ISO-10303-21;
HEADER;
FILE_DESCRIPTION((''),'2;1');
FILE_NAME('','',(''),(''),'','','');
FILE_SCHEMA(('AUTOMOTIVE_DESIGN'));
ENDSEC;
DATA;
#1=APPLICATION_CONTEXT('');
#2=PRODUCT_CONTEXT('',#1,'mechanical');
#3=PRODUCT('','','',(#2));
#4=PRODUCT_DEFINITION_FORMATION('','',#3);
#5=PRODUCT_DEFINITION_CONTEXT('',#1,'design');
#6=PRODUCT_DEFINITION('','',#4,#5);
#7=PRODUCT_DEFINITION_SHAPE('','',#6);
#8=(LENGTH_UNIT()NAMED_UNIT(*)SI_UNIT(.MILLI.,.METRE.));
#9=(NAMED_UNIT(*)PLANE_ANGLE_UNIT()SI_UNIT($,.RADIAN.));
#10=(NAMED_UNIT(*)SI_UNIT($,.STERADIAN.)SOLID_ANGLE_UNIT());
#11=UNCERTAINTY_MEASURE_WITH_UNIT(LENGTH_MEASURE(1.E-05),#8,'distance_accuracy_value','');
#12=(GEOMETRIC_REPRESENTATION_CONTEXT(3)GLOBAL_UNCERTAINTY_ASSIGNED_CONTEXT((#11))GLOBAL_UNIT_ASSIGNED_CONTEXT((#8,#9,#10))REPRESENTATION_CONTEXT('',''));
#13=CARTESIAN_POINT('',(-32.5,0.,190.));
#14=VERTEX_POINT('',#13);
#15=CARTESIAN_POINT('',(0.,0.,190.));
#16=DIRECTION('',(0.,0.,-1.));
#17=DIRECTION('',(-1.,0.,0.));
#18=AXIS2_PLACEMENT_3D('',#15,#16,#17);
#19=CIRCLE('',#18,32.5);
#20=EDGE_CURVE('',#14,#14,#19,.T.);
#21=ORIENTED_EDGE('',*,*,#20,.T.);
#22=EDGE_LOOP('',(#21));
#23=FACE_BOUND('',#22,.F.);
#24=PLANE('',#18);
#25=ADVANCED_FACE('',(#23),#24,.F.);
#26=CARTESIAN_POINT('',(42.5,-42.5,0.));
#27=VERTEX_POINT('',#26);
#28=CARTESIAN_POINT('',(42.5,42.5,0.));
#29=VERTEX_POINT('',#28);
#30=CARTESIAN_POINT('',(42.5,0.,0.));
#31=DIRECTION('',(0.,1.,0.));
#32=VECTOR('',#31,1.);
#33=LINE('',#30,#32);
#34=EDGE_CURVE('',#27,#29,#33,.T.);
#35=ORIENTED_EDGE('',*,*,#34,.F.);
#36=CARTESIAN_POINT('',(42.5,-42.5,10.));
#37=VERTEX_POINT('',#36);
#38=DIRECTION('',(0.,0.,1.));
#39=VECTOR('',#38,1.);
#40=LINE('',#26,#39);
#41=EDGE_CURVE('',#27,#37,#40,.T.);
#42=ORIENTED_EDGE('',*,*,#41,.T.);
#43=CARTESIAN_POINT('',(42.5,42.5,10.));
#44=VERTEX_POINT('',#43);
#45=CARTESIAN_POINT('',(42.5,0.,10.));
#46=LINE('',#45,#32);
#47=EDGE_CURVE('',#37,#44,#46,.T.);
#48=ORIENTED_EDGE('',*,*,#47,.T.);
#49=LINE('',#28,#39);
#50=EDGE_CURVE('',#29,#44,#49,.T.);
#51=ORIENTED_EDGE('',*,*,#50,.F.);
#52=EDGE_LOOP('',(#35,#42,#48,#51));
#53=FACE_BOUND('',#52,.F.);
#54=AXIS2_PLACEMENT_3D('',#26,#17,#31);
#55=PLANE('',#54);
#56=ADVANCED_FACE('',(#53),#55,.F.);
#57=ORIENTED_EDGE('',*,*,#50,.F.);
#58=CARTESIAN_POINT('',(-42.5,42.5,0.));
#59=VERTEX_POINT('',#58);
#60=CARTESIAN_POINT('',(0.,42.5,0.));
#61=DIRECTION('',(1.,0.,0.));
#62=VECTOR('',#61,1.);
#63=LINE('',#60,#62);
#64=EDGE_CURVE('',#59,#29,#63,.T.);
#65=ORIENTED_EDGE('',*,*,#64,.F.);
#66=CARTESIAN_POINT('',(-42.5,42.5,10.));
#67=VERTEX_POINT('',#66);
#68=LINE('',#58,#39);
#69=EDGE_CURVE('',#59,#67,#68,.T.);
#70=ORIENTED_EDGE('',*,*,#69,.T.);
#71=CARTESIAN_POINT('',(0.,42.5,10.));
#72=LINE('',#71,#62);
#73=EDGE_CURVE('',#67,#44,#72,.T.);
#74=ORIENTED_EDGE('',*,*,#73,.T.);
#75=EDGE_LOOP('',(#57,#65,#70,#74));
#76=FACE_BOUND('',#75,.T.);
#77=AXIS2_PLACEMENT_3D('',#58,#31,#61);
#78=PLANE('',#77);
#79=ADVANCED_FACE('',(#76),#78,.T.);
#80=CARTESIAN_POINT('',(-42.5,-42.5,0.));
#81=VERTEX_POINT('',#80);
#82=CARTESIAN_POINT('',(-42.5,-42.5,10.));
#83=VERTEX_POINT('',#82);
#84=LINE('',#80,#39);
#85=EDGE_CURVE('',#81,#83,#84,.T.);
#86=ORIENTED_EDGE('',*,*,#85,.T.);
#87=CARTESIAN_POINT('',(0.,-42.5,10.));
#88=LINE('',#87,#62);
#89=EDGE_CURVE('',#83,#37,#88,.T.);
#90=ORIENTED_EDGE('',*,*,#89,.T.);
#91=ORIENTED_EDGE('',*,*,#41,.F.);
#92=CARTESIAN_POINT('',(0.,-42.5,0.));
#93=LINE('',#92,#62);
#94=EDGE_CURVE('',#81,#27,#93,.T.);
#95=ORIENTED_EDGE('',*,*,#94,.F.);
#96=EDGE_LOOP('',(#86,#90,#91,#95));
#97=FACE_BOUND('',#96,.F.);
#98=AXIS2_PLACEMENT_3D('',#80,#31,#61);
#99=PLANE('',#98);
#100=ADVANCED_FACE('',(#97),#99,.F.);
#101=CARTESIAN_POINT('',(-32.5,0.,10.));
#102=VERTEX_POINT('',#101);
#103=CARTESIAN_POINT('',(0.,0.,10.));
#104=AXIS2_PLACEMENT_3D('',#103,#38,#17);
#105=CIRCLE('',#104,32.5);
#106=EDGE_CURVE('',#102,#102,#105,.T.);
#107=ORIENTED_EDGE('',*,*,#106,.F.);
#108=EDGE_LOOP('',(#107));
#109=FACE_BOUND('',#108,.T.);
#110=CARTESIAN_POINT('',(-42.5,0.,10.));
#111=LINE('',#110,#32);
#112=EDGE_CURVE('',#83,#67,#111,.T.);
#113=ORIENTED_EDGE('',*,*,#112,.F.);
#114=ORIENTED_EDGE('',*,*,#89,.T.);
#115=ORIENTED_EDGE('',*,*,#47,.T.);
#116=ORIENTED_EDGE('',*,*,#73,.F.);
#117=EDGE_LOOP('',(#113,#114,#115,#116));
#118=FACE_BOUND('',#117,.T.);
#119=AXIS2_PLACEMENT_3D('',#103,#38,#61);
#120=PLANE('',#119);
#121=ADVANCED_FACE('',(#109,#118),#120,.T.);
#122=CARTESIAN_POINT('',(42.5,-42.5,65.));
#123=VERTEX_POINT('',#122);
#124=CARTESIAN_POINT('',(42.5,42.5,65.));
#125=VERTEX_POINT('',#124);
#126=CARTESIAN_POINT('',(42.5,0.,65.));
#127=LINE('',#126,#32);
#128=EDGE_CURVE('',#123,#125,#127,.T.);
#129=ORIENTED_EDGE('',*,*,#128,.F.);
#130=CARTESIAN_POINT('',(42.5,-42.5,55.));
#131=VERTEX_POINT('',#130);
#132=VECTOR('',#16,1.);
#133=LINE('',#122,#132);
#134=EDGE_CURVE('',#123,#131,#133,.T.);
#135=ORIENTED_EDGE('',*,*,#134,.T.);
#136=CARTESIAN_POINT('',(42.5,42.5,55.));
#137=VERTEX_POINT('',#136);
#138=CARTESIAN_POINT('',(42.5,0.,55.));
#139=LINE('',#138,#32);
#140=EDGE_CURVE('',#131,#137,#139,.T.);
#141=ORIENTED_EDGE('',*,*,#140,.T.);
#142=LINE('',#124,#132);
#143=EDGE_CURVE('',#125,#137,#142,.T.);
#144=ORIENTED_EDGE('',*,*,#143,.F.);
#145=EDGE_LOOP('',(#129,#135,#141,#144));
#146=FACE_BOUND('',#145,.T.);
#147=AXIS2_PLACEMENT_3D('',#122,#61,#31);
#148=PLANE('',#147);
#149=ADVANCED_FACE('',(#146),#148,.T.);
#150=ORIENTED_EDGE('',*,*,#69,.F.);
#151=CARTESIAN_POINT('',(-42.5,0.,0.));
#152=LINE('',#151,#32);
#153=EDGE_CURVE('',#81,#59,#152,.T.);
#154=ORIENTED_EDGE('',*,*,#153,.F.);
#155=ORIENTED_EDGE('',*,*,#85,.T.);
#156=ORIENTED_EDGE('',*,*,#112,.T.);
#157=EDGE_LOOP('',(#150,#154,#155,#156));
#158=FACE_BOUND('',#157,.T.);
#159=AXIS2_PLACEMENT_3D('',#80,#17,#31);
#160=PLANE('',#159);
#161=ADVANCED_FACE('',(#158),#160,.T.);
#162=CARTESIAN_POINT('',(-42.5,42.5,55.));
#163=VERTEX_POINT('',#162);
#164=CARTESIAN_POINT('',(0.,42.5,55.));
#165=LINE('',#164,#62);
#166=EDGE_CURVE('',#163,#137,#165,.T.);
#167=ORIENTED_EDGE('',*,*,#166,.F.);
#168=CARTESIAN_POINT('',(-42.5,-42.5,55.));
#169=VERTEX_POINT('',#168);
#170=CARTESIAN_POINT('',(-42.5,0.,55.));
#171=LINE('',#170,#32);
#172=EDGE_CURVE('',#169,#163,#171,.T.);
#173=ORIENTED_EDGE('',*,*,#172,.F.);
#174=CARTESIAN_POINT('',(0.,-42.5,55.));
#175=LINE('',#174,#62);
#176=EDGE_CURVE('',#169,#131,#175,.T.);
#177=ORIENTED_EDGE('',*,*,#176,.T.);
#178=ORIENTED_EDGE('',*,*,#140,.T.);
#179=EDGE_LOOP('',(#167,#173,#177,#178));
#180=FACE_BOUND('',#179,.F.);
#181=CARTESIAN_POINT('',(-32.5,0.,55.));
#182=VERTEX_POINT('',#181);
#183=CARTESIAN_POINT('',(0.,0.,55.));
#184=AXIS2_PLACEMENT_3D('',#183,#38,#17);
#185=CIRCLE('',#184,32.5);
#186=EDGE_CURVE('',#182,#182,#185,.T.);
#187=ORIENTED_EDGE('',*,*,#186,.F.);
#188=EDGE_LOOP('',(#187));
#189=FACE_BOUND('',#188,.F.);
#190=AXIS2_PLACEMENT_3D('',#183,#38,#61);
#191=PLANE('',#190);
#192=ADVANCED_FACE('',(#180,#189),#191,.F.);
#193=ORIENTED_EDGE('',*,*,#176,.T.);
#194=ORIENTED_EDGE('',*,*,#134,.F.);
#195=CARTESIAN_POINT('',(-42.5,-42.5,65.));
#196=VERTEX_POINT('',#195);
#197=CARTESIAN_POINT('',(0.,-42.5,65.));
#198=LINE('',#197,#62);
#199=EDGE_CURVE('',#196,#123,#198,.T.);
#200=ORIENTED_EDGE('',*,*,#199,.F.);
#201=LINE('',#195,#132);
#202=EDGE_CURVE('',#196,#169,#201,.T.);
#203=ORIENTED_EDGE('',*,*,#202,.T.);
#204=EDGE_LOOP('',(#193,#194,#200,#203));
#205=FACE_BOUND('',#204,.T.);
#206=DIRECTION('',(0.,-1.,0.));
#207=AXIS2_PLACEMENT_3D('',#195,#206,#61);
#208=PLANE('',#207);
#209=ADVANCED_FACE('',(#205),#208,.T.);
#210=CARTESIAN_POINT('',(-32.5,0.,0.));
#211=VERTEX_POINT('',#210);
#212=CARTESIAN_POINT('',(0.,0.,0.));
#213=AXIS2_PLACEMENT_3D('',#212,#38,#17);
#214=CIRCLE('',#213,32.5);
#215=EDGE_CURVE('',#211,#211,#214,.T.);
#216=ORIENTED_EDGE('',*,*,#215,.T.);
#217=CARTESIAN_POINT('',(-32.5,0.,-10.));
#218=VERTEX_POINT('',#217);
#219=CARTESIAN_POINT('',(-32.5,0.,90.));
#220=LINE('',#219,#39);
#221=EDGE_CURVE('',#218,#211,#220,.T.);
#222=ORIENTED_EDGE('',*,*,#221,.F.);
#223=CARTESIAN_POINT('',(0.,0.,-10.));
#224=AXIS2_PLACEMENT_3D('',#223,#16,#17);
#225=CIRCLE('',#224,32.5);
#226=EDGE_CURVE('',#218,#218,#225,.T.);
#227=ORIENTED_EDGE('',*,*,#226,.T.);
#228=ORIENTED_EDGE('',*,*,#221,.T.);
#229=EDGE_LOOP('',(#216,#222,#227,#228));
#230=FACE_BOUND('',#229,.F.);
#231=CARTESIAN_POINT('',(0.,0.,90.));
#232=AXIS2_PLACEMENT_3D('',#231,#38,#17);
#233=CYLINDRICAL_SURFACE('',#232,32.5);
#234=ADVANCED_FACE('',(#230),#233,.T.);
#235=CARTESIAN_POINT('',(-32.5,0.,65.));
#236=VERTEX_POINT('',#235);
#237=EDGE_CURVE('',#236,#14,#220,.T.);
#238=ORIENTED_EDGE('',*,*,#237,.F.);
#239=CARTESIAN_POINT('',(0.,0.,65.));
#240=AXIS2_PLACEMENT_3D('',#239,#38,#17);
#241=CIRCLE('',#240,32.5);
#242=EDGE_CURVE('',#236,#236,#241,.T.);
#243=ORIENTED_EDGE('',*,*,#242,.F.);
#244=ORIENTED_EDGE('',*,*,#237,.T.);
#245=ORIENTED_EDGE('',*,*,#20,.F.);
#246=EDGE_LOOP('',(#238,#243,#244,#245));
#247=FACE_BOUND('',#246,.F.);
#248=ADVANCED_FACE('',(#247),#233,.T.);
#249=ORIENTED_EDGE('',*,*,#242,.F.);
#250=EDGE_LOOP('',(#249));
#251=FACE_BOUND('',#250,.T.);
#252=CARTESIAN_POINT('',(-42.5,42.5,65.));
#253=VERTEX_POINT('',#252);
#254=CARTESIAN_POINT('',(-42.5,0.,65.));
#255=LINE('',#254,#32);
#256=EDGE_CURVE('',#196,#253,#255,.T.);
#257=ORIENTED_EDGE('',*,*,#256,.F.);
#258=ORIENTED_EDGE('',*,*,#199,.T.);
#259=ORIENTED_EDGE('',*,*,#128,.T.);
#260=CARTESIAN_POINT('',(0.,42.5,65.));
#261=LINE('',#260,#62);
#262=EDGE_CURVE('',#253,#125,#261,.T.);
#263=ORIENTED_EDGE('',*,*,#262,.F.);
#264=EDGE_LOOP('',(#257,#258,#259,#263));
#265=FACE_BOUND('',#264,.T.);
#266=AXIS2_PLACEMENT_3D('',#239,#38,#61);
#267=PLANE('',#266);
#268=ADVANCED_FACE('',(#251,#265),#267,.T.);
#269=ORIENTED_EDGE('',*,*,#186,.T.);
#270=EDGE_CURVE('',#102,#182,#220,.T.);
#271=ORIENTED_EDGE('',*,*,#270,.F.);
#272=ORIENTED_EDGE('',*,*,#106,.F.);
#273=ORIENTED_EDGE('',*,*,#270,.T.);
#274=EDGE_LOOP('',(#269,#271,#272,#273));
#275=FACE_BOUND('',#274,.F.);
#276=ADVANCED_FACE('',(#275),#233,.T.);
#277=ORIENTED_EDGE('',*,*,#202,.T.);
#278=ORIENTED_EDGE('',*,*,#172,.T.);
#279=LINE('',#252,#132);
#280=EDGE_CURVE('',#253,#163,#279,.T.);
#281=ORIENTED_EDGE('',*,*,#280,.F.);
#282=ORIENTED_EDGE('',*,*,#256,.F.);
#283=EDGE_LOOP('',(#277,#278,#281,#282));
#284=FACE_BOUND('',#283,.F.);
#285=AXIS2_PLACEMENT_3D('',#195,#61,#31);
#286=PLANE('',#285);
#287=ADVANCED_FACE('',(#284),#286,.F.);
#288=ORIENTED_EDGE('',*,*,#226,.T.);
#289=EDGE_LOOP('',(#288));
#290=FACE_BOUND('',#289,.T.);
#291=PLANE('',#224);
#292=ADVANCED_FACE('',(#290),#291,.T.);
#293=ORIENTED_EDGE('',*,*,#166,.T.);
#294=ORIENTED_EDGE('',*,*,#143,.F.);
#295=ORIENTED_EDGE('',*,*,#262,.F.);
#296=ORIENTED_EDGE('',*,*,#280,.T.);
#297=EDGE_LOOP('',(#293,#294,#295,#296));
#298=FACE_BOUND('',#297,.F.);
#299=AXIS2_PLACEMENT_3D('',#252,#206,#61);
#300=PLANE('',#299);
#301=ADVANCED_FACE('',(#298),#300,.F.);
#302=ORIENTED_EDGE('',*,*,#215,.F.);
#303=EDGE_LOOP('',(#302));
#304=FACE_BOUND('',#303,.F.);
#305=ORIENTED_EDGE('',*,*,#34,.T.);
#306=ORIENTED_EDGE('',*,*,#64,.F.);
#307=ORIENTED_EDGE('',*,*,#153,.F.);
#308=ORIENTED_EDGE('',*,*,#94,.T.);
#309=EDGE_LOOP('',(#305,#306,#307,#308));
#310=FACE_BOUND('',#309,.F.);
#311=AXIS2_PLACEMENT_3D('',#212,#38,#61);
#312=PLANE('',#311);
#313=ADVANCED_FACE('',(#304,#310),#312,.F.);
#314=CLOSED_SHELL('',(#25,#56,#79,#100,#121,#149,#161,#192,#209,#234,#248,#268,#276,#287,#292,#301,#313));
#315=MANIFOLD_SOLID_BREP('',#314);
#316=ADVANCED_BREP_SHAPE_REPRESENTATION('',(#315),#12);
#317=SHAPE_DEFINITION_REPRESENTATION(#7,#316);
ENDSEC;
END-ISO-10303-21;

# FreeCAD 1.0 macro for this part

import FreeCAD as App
import Part
import Sketcher

doc = App.newDocument("Part")
params = doc.addObject("Spreadsheet::Sheet", "Params")
for row, (alias, value) in enumerate([
    ("sketch1_height", "200 mm"),
    ("sketch1_width", "32.5 mm"),
    ("revolution_angle", "360 deg"),
    ("sketch2_width", "85 mm"),
    ("pad1_length", "10 mm"),
    ("sketch3_width", "85 mm"),
    ("pad2_length", "10 mm"),
], start=1):
    params.set(f"A{row}", alias)
    params.set(f"B{row}", "=" + value)
    params.setAlias(f"B{row}", alias)

body = doc.addObject("PartDesign::Body", "Body")

sketch1 = doc.addObject("Sketcher::SketchObject", "Sketch")
body.addObject(sketch1)
sketch1.AttachmentSupport = (doc.XZ_Plane, [""])
sketch1.MapMode = "FlatFace"
sketch1.addGeometry([
    Part.LineSegment(App.Vector(-32, 190, 0), App.Vector(-32, -10, 0)),
    Part.LineSegment(App.Vector(-32, -10, 0), App.Vector(0, -10, 0)),
    Part.LineSegment(App.Vector(0, -10, 0), App.Vector(0, 190, 0)),
    Part.LineSegment(App.Vector(0, 190, 0), App.Vector(-32, 190, 0)),
], False)
sketch1.addConstraint([
    Sketcher.Constraint("Coincident", 0, 2, 1, 1),
    Sketcher.Constraint("Coincident", 1, 2, 2, 1),
    Sketcher.Constraint("Coincident", 2, 2, 3, 1),
    Sketcher.Constraint("Coincident", 3, 2, 0, 1),
    Sketcher.Constraint("Vertical", 0),
    Sketcher.Constraint("Horizontal", 1),
    Sketcher.Constraint("Vertical", 2),
    Sketcher.Constraint("Horizontal", 3),
    Sketcher.Constraint("PointOnObject", 1, 2, -2),
    Sketcher.Constraint("DistanceY", 0, 2, 0, 1, 200.0),
    Sketcher.Constraint("DistanceX", 1, 1, 1, 2, 32.5),
    Sketcher.Constraint("DistanceY", 0, 2, -1, 1, 10.0),
])
sketch1.setExpression("Constraints[9]", "Params.sketch1_height")
sketch1.setExpression("Constraints[10]", "Params.sketch1_width")
revolution = doc.addObject("PartDesign::Revolution", "Revolution")
body.addObject(revolution)
revolution.Profile = sketch1
revolution.ReferenceAxis = (sketch1, ["V_Axis"])
revolution.setExpression("Angle", "Params.revolution_angle")

sketch2 = doc.addObject("Sketcher::SketchObject", "Sketch001")
body.addObject(sketch2)
sketch2.AttachmentSupport = (doc.XY_Plane, [""])
sketch2.MapMode = "FlatFace"
sketch2.addGeometry([
    Part.LineSegment(App.Vector(-42, 42, 0), App.Vector(-42, -42, 0)),
    Part.LineSegment(App.Vector(-42, -42, 0), App.Vector(42, -42, 0)),
    Part.LineSegment(App.Vector(42, -42, 0), App.Vector(42, 42, 0)),
    Part.LineSegment(App.Vector(42, 42, 0), App.Vector(-42, 42, 0)),
], False)
sketch2.addConstraint([
    Sketcher.Constraint("Coincident", 0, 2, 1, 1),
    Sketcher.Constraint("Coincident", 1, 2, 2, 1),
    Sketcher.Constraint("Coincident", 2, 2, 3, 1),
    Sketcher.Constraint("Coincident", 3, 2, 0, 1),
    Sketcher.Constraint("Vertical", 0),
    Sketcher.Constraint("Horizontal", 1),
    Sketcher.Constraint("Vertical", 2),
    Sketcher.Constraint("Horizontal", 3),
    Sketcher.Constraint("Symmetric", 0, 2, 2, 2, -1, 1),
    Sketcher.Constraint("Equal", 3, 0),
    Sketcher.Constraint("DistanceX", 1, 1, 1, 2, 85.0),
])
sketch2.setExpression("Constraints[10]", "Params.sketch2_width")
pad1 = doc.addObject("PartDesign::Pad", "Pad")
body.addObject(pad1)
pad1.Profile = sketch2
pad1.setExpression("Length", "Params.pad1_length")

sketch3 = doc.addObject("Sketcher::SketchObject", "Sketch002")
body.addObject(sketch3)
sketch3.AttachmentSupport = (doc.XY_Plane, [""])
sketch3.MapMode = "FlatFace"
sketch3.AttachmentOffset = App.Placement(App.Vector(0, 0, 65), App.Rotation())
sketch3.addGeometry([
    Part.LineSegment(App.Vector(-42, 42, 0), App.Vector(-42, -42, 0)),
    Part.LineSegment(App.Vector(-42, -42, 0), App.Vector(42, -42, 0)),
    Part.LineSegment(App.Vector(42, -42, 0), App.Vector(42, 42, 0)),
    Part.LineSegment(App.Vector(42, 42, 0), App.Vector(-42, 42, 0)),
], False)
sketch3.addConstraint([
    Sketcher.Constraint("Coincident", 0, 2, 1, 1),
    Sketcher.Constraint("Coincident", 1, 2, 2, 1),
    Sketcher.Constraint("Coincident", 2, 2, 3, 1),
    Sketcher.Constraint("Coincident", 3, 2, 0, 1),
    Sketcher.Constraint("Vertical", 0),
    Sketcher.Constraint("Horizontal", 1),
    Sketcher.Constraint("Vertical", 2),
    Sketcher.Constraint("Horizontal", 3),
    Sketcher.Constraint("Symmetric", 0, 2, 2, 2, -1, 1),
    Sketcher.Constraint("Equal", 3, 0),
    Sketcher.Constraint("DistanceX", 1, 1, 1, 2, 85.0),
])
sketch3.setExpression("Constraints[10]", "Params.sketch3_width")
pad2 = doc.addObject("PartDesign::Pad", "Pad001")
body.addObject(pad2)
pad2.Profile = sketch3
pad2.setExpression("Length", "Params.pad2_length")
pad2.Reversed = True

doc.recompute()
